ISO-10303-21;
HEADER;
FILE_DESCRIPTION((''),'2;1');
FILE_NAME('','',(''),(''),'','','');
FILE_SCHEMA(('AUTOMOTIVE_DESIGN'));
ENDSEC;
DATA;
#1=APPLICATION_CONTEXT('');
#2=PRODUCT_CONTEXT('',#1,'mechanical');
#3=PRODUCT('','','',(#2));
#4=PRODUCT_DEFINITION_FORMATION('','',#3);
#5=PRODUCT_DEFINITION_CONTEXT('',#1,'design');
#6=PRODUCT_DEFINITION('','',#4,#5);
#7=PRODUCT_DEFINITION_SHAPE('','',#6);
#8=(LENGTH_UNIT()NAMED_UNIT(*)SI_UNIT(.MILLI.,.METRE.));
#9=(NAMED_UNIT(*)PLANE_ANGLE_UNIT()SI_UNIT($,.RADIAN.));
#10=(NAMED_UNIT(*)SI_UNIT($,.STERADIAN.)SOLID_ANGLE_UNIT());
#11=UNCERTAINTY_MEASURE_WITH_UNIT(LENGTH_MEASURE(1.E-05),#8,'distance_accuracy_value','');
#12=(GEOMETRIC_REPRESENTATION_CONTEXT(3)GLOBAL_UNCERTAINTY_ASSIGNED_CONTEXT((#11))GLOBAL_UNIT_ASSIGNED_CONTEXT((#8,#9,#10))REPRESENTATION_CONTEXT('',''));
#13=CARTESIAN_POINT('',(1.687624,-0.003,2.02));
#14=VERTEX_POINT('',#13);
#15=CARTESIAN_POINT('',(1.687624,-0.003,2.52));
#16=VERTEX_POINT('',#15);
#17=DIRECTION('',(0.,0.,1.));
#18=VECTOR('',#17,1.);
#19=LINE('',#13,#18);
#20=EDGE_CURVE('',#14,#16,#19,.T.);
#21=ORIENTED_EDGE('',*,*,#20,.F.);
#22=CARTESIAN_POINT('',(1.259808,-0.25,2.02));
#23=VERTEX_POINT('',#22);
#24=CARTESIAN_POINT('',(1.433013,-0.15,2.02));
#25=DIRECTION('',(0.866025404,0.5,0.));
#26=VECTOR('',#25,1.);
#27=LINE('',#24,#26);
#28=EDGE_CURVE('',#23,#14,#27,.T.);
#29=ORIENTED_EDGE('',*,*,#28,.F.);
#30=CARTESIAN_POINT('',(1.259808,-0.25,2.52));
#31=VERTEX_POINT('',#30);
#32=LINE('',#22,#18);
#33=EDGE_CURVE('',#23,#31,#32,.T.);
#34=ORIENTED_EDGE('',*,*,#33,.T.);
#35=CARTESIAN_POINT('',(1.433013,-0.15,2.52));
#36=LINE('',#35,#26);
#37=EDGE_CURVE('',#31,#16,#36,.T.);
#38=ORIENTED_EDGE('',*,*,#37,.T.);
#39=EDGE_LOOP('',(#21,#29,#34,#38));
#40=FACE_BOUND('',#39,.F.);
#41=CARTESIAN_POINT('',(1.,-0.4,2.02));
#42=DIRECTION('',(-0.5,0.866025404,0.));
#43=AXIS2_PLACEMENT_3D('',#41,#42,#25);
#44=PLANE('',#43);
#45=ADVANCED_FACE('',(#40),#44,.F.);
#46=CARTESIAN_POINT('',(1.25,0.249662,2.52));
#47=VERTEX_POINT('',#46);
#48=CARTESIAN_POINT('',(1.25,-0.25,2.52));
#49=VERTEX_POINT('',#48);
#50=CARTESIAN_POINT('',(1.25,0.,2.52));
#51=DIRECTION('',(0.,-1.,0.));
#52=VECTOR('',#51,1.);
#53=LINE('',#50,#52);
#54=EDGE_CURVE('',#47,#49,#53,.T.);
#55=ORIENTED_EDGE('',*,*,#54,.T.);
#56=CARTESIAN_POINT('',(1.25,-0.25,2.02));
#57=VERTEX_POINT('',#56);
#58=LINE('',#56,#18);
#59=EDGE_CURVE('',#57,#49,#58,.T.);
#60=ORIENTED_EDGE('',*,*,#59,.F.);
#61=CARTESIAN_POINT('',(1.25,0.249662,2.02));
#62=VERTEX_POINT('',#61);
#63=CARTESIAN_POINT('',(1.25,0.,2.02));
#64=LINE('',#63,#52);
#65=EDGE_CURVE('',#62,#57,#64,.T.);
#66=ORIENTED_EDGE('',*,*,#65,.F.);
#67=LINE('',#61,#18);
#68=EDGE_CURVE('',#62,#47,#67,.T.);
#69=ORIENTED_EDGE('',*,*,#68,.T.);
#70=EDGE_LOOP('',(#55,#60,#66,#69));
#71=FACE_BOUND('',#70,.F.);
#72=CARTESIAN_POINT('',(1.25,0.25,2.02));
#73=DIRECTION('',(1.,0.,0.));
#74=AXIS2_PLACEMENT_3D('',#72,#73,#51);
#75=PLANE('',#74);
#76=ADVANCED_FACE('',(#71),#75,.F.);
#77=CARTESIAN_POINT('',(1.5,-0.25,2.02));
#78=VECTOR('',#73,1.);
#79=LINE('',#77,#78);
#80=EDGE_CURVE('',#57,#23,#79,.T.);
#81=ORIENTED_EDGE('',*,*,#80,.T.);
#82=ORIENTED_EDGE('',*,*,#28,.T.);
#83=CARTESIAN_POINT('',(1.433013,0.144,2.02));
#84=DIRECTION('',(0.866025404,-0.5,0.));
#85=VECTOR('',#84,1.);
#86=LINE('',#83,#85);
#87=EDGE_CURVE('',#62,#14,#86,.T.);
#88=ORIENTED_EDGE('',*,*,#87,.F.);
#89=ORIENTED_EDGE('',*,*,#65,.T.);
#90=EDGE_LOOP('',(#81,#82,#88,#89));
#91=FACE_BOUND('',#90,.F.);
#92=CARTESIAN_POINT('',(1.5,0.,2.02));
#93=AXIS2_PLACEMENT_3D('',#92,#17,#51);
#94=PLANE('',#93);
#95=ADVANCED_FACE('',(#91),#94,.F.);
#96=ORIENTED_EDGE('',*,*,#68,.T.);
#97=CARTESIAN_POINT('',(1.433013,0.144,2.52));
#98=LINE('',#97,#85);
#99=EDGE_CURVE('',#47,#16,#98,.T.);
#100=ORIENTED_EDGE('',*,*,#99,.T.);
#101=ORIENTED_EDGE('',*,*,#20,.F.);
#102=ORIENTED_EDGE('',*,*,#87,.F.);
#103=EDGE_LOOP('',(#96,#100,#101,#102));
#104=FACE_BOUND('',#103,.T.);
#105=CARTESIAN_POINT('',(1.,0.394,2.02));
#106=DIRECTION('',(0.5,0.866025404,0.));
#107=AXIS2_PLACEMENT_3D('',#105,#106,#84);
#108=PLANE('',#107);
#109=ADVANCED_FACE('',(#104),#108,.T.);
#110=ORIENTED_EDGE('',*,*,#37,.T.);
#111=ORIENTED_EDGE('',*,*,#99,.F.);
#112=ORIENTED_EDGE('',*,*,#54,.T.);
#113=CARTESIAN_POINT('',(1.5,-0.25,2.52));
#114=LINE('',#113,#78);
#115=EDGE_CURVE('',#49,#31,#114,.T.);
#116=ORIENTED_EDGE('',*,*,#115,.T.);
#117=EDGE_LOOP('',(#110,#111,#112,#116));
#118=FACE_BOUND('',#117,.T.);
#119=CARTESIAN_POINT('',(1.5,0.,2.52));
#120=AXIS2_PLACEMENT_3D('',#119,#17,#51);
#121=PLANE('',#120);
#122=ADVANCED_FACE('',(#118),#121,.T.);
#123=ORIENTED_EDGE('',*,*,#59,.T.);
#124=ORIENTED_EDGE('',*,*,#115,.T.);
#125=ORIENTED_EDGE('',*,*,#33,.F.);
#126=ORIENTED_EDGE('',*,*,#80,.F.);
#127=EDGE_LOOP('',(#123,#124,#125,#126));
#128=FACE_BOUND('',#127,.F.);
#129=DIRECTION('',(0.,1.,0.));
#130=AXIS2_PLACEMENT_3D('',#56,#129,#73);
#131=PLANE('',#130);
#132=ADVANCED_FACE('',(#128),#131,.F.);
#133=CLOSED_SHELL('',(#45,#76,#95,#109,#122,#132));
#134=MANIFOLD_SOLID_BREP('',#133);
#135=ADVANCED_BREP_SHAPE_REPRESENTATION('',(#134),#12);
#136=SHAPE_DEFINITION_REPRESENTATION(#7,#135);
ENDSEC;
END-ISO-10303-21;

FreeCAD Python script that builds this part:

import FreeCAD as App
import Part
import Sketcher


def add_polygon(sketch, points):
    """Adds a closed chain of lines whose ends are joined by coincident constraints."""
    first, n = sketch.GeometryCount, len(points)
    for a, b in zip(points, points[1:] + points[:1]):
        sketch.addGeometry(Part.LineSegment(App.Vector(*a, 0), App.Vector(*b, 0)), False)
    for i in range(n):
        sketch.addConstraint(Sketcher.Constraint("Coincident", first + i, 2, first + (i + 1) % n, 1))

doc = App.newDocument("Part")
body = doc.addObject("PartDesign::Body", "Body")

sketch1 = doc.addObject("Sketcher::SketchObject", "Sketch")
body.addObject(sketch1)
sketch1.AttachmentSupport = (doc.XY_Plane, [""])
sketch1.MapMode = "FlatFace"
add_polygon(sketch1, [(0, 1), (0, 0), (1, 0), (1, 1)])
sketch1.addConstraint([
    Sketcher.Constraint("Vertical", 0),
    Sketcher.Constraint("Horizontal", 1),
    Sketcher.Constraint("Vertical", 2),
    Sketcher.Constraint("Horizontal", 3),
    Sketcher.Constraint("Coincident", 0, 2, -1, 1),
    Sketcher.Constraint("Equal", 3, 0),
    Sketcher.Constraint("DistanceX", 1, 1, 1, 2, 1.0),
])
pad1 = doc.addObject("PartDesign::Pad", "Pad")
body.addObject(pad1)
pad1.Profile = sketch1
pad1.Length = 0.5
body2 = doc.addObject("PartDesign::Body", "Body001")
doc.recompute()

body.Placement = App.Placement(App.Vector(0.4, 1, 2.02), App.Rotation(App.Vector(0, 0, 1), 30))
boolean = doc.addObject("PartDesign::Boolean", "Boolean")
body2.addObject(boolean)
boolean.Type = "Fuse"
boolean.addObjects([body])
body3 = doc.addObject("PartDesign::Body", "Body002")

sketch2 = doc.addObject("Sketcher::SketchObject", "Sketch001")
body3.addObject(sketch2)
sketch2.AttachmentSupport = (doc.getObject("XY_Plane002"), [""])
sketch2.MapMode = "FlatFace"
add_polygon(sketch2, [(0, 1), (0, 0), (1, 0), (1, 1)])
sketch2.addConstraint([
    Sketcher.Constraint("Vertical", 0),
    Sketcher.Constraint("Horizontal", 1),
    Sketcher.Constraint("Vertical", 2),
    Sketcher.Constraint("Horizontal", 3),
    Sketcher.Constraint("Coincident", 0, 2, -1, 1),
    Sketcher.Constraint("Equal", 3, 0),
    Sketcher.Constraint("DistanceX", 1, 1, 1, 2, 1.0),
])
pad2 = doc.addObject("PartDesign::Pad", "Pad001")
body3.addObject(pad2)
pad2.Profile = sketch2
pad2.Length = 0.5
body4 = doc.addObject("PartDesign::Body", "Body003")
doc.recompute()

body3.Placement = App.Placement(App.Vector(-0.394, 1, 2.02), App.Rotation(App.Vector(0, 0, 1), 60))
boolean2 = doc.addObject("PartDesign::Boolean", "Boolean001")
body4.addObject(boolean2)
boolean2.Type = "Fuse"
boolean2.addObjects([body3])
body5 = doc.addObject("PartDesign::Body", "Body004")

sketch3 = doc.addObject("Sketcher::SketchObject", "Sketch002")
body5.addObject(sketch3)
sketch3.AttachmentSupport = (doc.getObject("XY_Plane004"), [""])
sketch3.MapMode = "FlatFace"
sketch3.AttachmentOffset = App.Placement(App.Vector(0, 0, 2.02), App.Rotation())
add_polygon(sketch3, [(-0.2, 1.8), (-0.2, 1.2), (0.2, 1.2), (0.2, 1.8)])
sketch3.addConstraint([
    Sketcher.Constraint("Vertical", 0),
    Sketcher.Constraint("Horizontal", 1),
    Sketcher.Constraint("Vertical", 2),
    Sketcher.Constraint("Horizontal", 3),
    Sketcher.Constraint("Equal", 3, 0),
    Sketcher.Constraint("DistanceX", 1, 1, 1, 2, 0.5),
    Sketcher.Constraint("DistanceX", 0, 2, -1, 1, 0.25),
    Sketcher.Constraint("DistanceY", -1, 1, 0, 2, 1.25),
])
pad3 = doc.addObject("PartDesign::Pad", "Pad002")
body5.addObject(pad3)
pad3.Profile = sketch3
pad3.Length = 0.5
doc.recompute()

boolean3 = doc.addObject("PartDesign::Boolean", "Boolean002")
body5.addObject(boolean3)
boolean3.Type = "Cut"
boolean3.addObjects([body4])
doc.recompute()

boolean4 = doc.addObject("PartDesign::Boolean", "Boolean003")
body5.addObject(boolean4)
boolean4.Type = "Cut"
boolean4.addObjects([body2])
body6 = doc.addObject("PartDesign::Body", "Body005")
doc.recompute()

body5.Placement = App.Placement(App.Vector(0, 0, 0), App.Rotation(App.Vector(0, 0, 1), 270))
boolean5 = doc.addObject("PartDesign::Boolean", "Boolean004")
body6.addObject(boolean5)
boolean5.Type = "Fuse"
boolean5.addObjects([body5])

doc.recompute()
